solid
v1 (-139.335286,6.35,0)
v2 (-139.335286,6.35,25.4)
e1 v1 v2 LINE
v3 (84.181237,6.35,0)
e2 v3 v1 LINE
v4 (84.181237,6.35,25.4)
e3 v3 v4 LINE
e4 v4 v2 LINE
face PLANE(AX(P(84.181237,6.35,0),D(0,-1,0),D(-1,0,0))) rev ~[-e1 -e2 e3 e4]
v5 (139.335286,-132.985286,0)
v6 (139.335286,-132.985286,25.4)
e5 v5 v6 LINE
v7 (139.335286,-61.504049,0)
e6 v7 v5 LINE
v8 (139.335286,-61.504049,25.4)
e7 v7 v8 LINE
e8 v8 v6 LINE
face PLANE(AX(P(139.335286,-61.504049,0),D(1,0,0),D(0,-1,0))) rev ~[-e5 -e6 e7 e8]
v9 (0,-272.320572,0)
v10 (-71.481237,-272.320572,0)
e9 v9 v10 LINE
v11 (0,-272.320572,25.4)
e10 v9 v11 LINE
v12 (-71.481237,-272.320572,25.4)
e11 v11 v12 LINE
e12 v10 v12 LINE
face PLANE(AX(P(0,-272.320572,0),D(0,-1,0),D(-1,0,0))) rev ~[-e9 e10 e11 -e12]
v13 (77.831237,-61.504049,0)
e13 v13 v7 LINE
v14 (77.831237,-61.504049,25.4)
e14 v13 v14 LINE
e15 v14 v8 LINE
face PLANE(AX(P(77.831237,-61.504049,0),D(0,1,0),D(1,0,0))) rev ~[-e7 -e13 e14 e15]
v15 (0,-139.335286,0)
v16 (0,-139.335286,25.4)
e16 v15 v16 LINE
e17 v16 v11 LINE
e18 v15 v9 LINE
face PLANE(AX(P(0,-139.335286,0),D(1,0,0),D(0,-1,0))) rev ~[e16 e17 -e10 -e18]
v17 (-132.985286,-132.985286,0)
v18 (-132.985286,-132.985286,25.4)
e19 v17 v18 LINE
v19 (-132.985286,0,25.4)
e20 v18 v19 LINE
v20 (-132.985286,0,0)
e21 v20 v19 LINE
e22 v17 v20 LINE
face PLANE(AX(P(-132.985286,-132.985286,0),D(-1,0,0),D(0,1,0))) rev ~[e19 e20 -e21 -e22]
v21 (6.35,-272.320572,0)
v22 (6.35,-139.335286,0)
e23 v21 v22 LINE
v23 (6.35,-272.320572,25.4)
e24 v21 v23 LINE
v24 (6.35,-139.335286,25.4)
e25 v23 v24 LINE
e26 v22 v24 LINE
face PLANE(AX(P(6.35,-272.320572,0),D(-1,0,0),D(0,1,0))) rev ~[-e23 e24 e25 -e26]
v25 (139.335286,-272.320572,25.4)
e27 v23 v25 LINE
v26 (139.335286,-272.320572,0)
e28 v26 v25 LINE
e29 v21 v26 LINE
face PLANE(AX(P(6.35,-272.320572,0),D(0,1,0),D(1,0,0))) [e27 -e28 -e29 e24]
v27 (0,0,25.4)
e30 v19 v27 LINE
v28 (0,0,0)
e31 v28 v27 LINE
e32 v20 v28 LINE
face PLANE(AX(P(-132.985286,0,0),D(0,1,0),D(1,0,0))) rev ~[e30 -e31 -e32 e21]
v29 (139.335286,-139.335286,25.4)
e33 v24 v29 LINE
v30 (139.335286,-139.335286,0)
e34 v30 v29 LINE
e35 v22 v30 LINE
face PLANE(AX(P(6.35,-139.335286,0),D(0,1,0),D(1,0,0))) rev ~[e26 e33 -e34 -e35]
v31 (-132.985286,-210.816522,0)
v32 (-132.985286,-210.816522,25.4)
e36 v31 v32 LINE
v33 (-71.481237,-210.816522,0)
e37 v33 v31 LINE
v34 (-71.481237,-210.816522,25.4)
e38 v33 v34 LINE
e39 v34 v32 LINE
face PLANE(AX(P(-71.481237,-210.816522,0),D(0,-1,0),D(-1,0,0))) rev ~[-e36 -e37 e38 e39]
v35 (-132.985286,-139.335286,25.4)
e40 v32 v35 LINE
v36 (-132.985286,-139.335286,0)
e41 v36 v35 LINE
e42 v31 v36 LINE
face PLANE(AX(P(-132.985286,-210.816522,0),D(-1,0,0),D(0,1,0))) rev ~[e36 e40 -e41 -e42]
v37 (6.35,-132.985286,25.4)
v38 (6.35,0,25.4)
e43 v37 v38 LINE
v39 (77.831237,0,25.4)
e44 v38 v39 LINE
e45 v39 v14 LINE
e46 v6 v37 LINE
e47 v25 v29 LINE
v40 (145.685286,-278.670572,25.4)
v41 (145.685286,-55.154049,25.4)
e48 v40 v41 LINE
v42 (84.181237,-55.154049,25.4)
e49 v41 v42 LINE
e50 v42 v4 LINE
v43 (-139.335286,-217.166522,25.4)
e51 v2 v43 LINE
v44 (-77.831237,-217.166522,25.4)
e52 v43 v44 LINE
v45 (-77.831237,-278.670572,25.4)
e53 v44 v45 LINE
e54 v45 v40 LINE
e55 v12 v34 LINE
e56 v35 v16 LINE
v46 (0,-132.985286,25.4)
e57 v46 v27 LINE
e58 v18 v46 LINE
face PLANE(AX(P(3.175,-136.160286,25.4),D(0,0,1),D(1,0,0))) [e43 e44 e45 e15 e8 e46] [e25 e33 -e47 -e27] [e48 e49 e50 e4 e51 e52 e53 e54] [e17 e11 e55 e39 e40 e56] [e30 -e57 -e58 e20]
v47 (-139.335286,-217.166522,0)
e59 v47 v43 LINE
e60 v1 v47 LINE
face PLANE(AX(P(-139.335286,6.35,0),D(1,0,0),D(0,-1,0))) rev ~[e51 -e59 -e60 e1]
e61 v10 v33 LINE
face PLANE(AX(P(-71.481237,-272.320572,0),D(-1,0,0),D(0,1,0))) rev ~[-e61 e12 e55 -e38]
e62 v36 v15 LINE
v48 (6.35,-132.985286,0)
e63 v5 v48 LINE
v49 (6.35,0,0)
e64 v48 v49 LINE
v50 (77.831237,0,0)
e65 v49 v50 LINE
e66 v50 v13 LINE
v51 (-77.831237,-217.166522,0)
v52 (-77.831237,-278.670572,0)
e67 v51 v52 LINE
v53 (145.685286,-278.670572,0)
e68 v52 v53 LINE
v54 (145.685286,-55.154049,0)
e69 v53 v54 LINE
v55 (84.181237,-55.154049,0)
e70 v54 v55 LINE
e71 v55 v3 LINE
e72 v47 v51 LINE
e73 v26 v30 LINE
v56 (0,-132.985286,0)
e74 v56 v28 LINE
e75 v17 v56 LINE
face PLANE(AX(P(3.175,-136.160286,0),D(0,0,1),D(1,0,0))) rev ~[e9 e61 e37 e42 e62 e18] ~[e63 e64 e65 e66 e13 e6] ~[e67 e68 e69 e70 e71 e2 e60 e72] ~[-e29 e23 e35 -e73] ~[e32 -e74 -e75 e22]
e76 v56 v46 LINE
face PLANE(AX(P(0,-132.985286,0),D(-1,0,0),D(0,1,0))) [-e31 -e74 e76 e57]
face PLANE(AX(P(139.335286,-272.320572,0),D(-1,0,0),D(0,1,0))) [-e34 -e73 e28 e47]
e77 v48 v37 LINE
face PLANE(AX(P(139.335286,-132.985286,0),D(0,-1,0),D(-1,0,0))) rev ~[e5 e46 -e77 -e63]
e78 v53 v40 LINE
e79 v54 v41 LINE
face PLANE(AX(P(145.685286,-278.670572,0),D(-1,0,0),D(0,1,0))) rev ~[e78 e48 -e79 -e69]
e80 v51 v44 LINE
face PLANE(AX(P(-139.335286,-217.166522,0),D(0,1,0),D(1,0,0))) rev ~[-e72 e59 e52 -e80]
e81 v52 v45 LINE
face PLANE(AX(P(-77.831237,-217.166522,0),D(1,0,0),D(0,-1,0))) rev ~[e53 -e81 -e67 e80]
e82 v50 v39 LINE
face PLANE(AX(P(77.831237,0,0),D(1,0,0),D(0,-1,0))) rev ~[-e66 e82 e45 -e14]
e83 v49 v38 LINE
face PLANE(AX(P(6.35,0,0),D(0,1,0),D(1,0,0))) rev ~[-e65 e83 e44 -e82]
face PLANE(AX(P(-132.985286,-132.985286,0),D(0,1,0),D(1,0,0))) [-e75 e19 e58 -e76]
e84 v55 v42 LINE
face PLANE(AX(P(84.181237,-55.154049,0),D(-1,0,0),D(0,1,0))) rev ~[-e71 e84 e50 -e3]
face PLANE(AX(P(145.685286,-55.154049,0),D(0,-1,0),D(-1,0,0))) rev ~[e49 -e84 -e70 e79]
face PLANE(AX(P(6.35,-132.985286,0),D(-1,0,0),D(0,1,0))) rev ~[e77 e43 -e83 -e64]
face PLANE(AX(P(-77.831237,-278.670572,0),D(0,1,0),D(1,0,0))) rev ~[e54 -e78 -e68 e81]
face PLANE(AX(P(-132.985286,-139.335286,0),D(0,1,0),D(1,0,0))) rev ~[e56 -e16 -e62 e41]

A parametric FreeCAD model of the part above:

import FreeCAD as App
import Part
import Sketcher
from FreeCAD import Vector
Q = App.Units.Quantity

doc = App.newDocument("Part")
body = doc.addObject("PartDesign::Body", "Body")

# Sketch on XY plane
sketch1 = body.newObject("Sketcher::SketchObject", "Sketch")
sketch1.AttachmentSupport = (doc.getObject("XY_Plane"), [""])
sketch1.MapMode = "FlatFace"
sketch1.addGeometry([
    Part.LineSegment(Vector(84.181237, -55.154049, 0), Vector(84.181237, 6.35, 0)),  # 0
    Part.LineSegment(Vector(84.181237, 6.35, 0), Vector(-139.335286, 6.35, 0)),  # 1
    Part.LineSegment(Vector(-139.335286, 6.35, 0), Vector(-139.335286, -217.166522, 0)),  # 2
    Part.LineSegment(Vector(-139.335286, -217.166522, 0), Vector(-77.831237, -217.166522, 0)),  # 3
    Part.LineSegment(Vector(-77.831237, -217.166522, 0), Vector(-77.831237, -278.670572, 0)),  # 4
    Part.LineSegment(Vector(-77.831237, -278.670572, 0), Vector(145.685286, -278.670572, 0)),  # 5
    Part.LineSegment(Vector(145.685286, -278.670572, 0), Vector(145.685286, -55.154049, 0)),  # 6
    Part.LineSegment(Vector(145.685286, -55.154049, 0), Vector(84.181237, -55.154049, 0)),  # 7
    Part.LineSegment(Vector(0, -139.335286, 0), Vector(0, -272.320572, 0)),  # 8
    Part.LineSegment(Vector(0, -272.320572, 0), Vector(-71.481237, -272.320572, 0)),  # 9
    Part.LineSegment(Vector(-71.481237, -272.320572, 0), Vector(-71.481237, -210.816522, 0)),  # 10
    Part.LineSegment(Vector(-71.481237, -210.816522, 0), Vector(-132.985286, -210.816522, 0)),  # 11
    Part.LineSegment(Vector(-132.985286, -210.816522, 0), Vector(-132.985286, -139.335286, 0)),  # 12
    Part.LineSegment(Vector(-132.985286, -139.335286, 0), Vector(0, -139.335286, 0)),  # 13
    Part.LineSegment(Vector(139.335286, -272.320572, 0), Vector(6.35, -272.320572, 0)),  # 14
    Part.LineSegment(Vector(6.35, -272.320572, 0), Vector(6.35, -139.335286, 0)),  # 15
    Part.LineSegment(Vector(6.35, -139.335286, 0), Vector(139.335286, -139.335286, 0)),  # 16
    Part.LineSegment(Vector(139.335286, -139.335286, 0), Vector(139.335286, -272.320572, 0)),  # 17
    Part.LineSegment(Vector(0, -132.985286, 0), Vector(-132.985286, -132.985286, 0)),  # 18
    Part.LineSegment(Vector(-132.985286, -132.985286, 0), Vector(-132.985286, 0, 0)),  # 19
    Part.LineSegment(Vector(-132.985286, 0, 0), Vector(0, 0, 0)),  # 20
    Part.LineSegment(Vector(0, 0, 0), Vector(0, -132.985286, 0)),  # 21
    Part.LineSegment(Vector(139.335286, -132.985286, 0), Vector(6.35, -132.985286, 0)),  # 22
    Part.LineSegment(Vector(6.35, -132.985286, 0), Vector(6.35, 0, 0)),  # 23
    Part.LineSegment(Vector(6.35, 0, 0), Vector(77.831237, 0, 0)),  # 24
    Part.LineSegment(Vector(77.831237, 0, 0), Vector(77.831237, -61.504049, 0)),  # 25
    Part.LineSegment(Vector(77.831237, -61.504049, 0), Vector(139.335286, -61.504049, 0)),  # 26
    Part.LineSegment(Vector(139.335286, -61.504049, 0), Vector(139.335286, -132.985286, 0)),  # 27
], False)
sketch1.addConstraint([
    Sketcher.Constraint("Coincident", 0, 2, 1, 1),
    Sketcher.Constraint("Coincident", 1, 2, 2, 1),
    Sketcher.Constraint("Coincident", 2, 2, 3, 1),
    Sketcher.Constraint("Coincident", 3, 2, 4, 1),
    Sketcher.Constraint("Coincident", 4, 2, 5, 1),
    Sketcher.Constraint("Coincident", 5, 2, 6, 1),
    Sketcher.Constraint("Coincident", 6, 2, 7, 1),
    Sketcher.Constraint("Coincident", 7, 2, 0, 1),
    Sketcher.Constraint("Coincident", 8, 2, 9, 1),
    Sketcher.Constraint("Coincident", 9, 2, 10, 1),
    Sketcher.Constraint("Coincident", 10, 2, 11, 1),
    Sketcher.Constraint("Coincident", 11, 2, 12, 1),
    Sketcher.Constraint("Coincident", 12, 2, 13, 1),
    Sketcher.Constraint("Coincident", 13, 2, 8, 1),
    Sketcher.Constraint("Coincident", 14, 2, 15, 1),
    Sketcher.Constraint("Coincident", 15, 2, 16, 1),
    Sketcher.Constraint("Coincident", 16, 2, 17, 1),
    Sketcher.Constraint("Coincident", 17, 2, 14, 1),
    Sketcher.Constraint("Coincident", 18, 2, 19, 1),
    Sketcher.Constraint("Coincident", 19, 2, 20, 1),
    Sketcher.Constraint("Coincident", 20, 2, 21, 1),
    Sketcher.Constraint("Coincident", 21, 2, 18, 1),
    Sketcher.Constraint("Coincident", 22, 2, 23, 1),
    Sketcher.Constraint("Coincident", 23, 2, 24, 1),
    Sketcher.Constraint("Coincident", 24, 2, 25, 1),
    Sketcher.Constraint("Coincident", 25, 2, 26, 1),
    Sketcher.Constraint("Coincident", 26, 2, 27, 1),
    Sketcher.Constraint("Coincident", 27, 2, 22, 1),
    Sketcher.Constraint("Vertical", 0),
    Sketcher.Constraint("Horizontal", 1),
    Sketcher.Constraint("Vertical", 2),
    Sketcher.Constraint("Horizontal", 3),
    Sketcher.Constraint("Vertical", 4),
    Sketcher.Constraint("Horizontal", 5),
    Sketcher.Constraint("Vertical", 6),
    Sketcher.Constraint("Horizontal", 7),
    Sketcher.Constraint("Vertical", 8),
    Sketcher.Constraint("Horizontal", 9),
    Sketcher.Constraint("Vertical", 10),
    Sketcher.Constraint("Horizontal", 11),
    Sketcher.Constraint("Vertical", 12),
    Sketcher.Constraint("Horizontal", 13),
    Sketcher.Constraint("Horizontal", 14),
    Sketcher.Constraint("Vertical", 15),
    Sketcher.Constraint("Horizontal", 16),
    Sketcher.Constraint("Vertical", 17),
    Sketcher.Constraint("Horizontal", 18),
    Sketcher.Constraint("Vertical", 19),
    Sketcher.Constraint("Horizontal", 20),
    Sketcher.Constraint("Vertical", 21),
    Sketcher.Constraint("Horizontal", 22),
    Sketcher.Constraint("Vertical", 23),
    Sketcher.Constraint("Horizontal", 24),
    Sketcher.Constraint("Vertical", 25),
    Sketcher.Constraint("Horizontal", 26),
    Sketcher.Constraint("Vertical", 27),
    Sketcher.Constraint("Coincident", 20, 2, -1, 1),
    Sketcher.Constraint("PointOnObject", 8, 2, -2),
    Sketcher.Constraint("PointOnObject", 23, 2, -1),
    Sketcher.Constraint("Horizontal", 9, 2, 14, 2),
    Sketcher.Constraint("Horizontal", 13, 2, 15, 2),
    Sketcher.Constraint("Horizontal", 21, 2, 22, 2),
    Sketcher.Constraint("Vertical", 12, 2, 18, 2),
    Sketcher.Constraint("Vertical", 15, 2, 22, 2),
    Sketcher.Constraint("Vertical", 17, 2, 26, 2),
    Sketcher.Constraint("Equal", 1, 5),
    Sketcher.Constraint("Equal", 7, 11),
    Sketcher.Constraint("Equal", 13, 14),
    Sketcher.Constraint("Equal", 9, 24),
    Sketcher.Constraint("Equal", 26, 0),
    Sketcher.Constraint("Equal", 5, 2),
    Sketcher.Constraint("Equal", 0, 4),
    Sketcher.Constraint("Equal", 22, 8),
    Sketcher.Constraint("Equal", 4, 10),
    Sketcher.Constraint("Equal", 17, 19),
    Sketcher.Constraint("Equal", 10, 25),
    Sketcher.Constraint("DistanceY", -1, 1, 0, 2, Q("0.25 in")),
    Sketcher.Constraint("DistanceX", -1, 1, 14, 2, Q("0.25 in")),
    Sketcher.Constraint("DistanceY", 4, 2, 8, 2, Q("0.25 in")),
    Sketcher.Constraint("DistanceX", 4, 2, 9, 2, Q("0.25 in")),
    Sketcher.Constraint("DistanceX", 16, 2, 6, 2, Q("0.25 in")),
    Sketcher.Constraint("DistanceX", 3, 1, 3, 2, Q("61.504049 mm")),
    Sketcher.Constraint("DistanceY", 2, 2, 2, 1, Q("223.516522 mm")),
])
pad1 = body.newObject("PartDesign::Pad", "Pad")
pad1.Profile = sketch1
pad1.Length = Q("1 in")

doc.recompute()
